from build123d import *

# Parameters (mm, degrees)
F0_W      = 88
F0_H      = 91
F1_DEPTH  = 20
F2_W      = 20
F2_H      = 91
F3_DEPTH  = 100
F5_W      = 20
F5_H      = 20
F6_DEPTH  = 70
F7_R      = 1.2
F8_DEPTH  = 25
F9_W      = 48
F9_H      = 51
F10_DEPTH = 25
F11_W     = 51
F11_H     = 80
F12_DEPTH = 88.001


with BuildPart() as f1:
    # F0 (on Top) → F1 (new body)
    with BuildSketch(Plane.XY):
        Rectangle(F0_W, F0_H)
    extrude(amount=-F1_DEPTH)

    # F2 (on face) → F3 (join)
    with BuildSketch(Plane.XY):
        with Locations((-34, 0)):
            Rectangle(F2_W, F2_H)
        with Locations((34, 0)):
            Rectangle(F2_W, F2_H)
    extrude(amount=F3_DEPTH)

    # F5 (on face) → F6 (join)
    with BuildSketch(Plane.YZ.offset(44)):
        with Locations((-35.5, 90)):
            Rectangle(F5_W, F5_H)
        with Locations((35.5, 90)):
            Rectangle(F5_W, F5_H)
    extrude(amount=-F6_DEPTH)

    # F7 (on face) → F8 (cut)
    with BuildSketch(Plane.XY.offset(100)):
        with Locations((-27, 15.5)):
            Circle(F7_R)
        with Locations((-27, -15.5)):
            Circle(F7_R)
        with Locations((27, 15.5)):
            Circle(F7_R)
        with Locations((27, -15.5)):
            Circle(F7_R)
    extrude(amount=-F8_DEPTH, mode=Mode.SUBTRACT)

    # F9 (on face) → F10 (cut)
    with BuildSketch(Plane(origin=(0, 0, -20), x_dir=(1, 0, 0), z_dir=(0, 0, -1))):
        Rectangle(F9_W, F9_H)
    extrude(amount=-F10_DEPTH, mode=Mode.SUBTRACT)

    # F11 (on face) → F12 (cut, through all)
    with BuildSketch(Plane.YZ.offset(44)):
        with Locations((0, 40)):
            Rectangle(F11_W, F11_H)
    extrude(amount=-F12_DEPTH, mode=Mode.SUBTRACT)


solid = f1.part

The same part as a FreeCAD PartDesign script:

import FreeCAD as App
import Part
import Sketcher
from FreeCAD import Vector


def add_polygon(sketch, points):
    """Adds a closed chain of lines whose ends are joined by coincident constraints."""
    first, n = sketch.GeometryCount, len(points)
    for a, b in zip(points, points[1:] + points[:1]):
        sketch.addGeometry(Part.LineSegment(App.Vector(*a, 0), App.Vector(*b, 0)), False)
    for i in range(n):
        sketch.addConstraint(Sketcher.Constraint("Coincident", first + i, 2, first + (i + 1) % n, 1))

doc = App.newDocument("Part")
body = doc.addObject("PartDesign::Body", "Body")

# Sketch on XY plane
sketch1 = body.newObject("Sketcher::SketchObject", "Sketch")
sketch1.AttachmentSupport = (doc.getObject("XY_Plane"), [""])
sketch1.MapMode = "FlatFace"
add_polygon(sketch1, [(-44, 46), (-44, -46), (44, -46), (44, 46)])  # lines 0-3
sketch1.addConstraint(Sketcher.Constraint("Vertical", 0))
sketch1.addConstraint(Sketcher.Constraint("Horizontal", 1))
sketch1.addConstraint(Sketcher.Constraint("Vertical", 2))
sketch1.addConstraint(Sketcher.Constraint("Horizontal", 3))
sketch1.addConstraint(Sketcher.Constraint("Symmetric", 0, 2, 2, 2, -1, 1))
sketch1.addConstraint(Sketcher.Constraint("DistanceX", 1, 1, 1, 2, 88.0))
sketch1.addConstraint(Sketcher.Constraint("DistanceY", 0, 2, 0, 1, 91.0))
pad1 = body.newObject("PartDesign::Pad", "Pad")
pad1.Profile = sketch1
pad1.Length = 20
pad1.Reversed = True

# Sketch on XY plane
sketch2 = body.newObject("Sketcher::SketchObject", "Sketch001")
sketch2.AttachmentSupport = (doc.getObject("XY_Plane"), [""])
sketch2.MapMode = "FlatFace"
add_polygon(sketch2, [(-44, 46), (-44, -46), (-24, -46), (-24, 46)])  # lines 0-3
add_polygon(sketch2, [(24, 46), (24, -46), (44, -46), (44, 46)])  # lines 4-7
sketch2.addConstraint(Sketcher.Constraint("Vertical", 0))
sketch2.addConstraint(Sketcher.Constraint("Horizontal", 1))
sketch2.addConstraint(Sketcher.Constraint("Vertical", 2))
sketch2.addConstraint(Sketcher.Constraint("Horizontal", 3))
sketch2.addConstraint(Sketcher.Constraint("Vertical", 4))
sketch2.addConstraint(Sketcher.Constraint("Horizontal", 5))
sketch2.addConstraint(Sketcher.Constraint("Vertical", 6))
sketch2.addConstraint(Sketcher.Constraint("Horizontal", 7))
sketch2.addConstraint(Sketcher.Constraint("Symmetric", 2, 2, 4, 2, -1, 1))
sketch2.addConstraint(Sketcher.Constraint("Symmetric", 0, 2, 6, 2, -1, 1))
sketch2.addConstraint(Sketcher.Constraint("Horizontal", 1, 2, 4, 2))
sketch2.addConstraint(Sketcher.Constraint("DistanceX", 1, 1, 1, 2, 20.0))
sketch2.addConstraint(Sketcher.Constraint("DistanceY", 0, 2, 0, 1, 91.0))
sketch2.addConstraint(Sketcher.Constraint("DistanceX", 0, 2, -1, 1, 44.0))
pad2 = body.newObject("PartDesign::Pad", "Pad001")
pad2.Profile = sketch2
pad2.Length = 100

# Sketch on YZ plane
sketch3 = body.newObject("Sketcher::SketchObject", "Sketch002")
sketch3.AttachmentSupport = (doc.getObject("YZ_Plane"), [""])
sketch3.MapMode = "FlatFace"
sketch3.AttachmentOffset = App.Placement(Vector(0, 0, 44), App.Rotation())
add_polygon(sketch3, [(-46, 100), (-46, 80), (-26, 80), (-26, 100)])  # lines 0-3
add_polygon(sketch3, [(26, 100), (26, 80), (46, 80), (46, 100)])  # lines 4-7
sketch3.addConstraint(Sketcher.Constraint("Vertical", 0))
sketch3.addConstraint(Sketcher.Constraint("Horizontal", 1))
sketch3.addConstraint(Sketcher.Constraint("Vertical", 2))
sketch3.addConstraint(Sketcher.Constraint("Horizontal", 3))
sketch3.addConstraint(Sketcher.Constraint("Vertical", 4))
sketch3.addConstraint(Sketcher.Constraint("Horizontal", 5))
sketch3.addConstraint(Sketcher.Constraint("Vertical", 6))
sketch3.addConstraint(Sketcher.Constraint("Horizontal", 7))
sketch3.addConstraint(Sketcher.Constraint("Symmetric", 1, 2, 4, 2, -2))
sketch3.addConstraint(Sketcher.Constraint("Symmetric", 3, 2, 6, 2, -2))
sketch3.addConstraint(Sketcher.Constraint("Equal", 7, 0))
sketch3.addConstraint(Sketcher.Constraint("DistanceX", 1, 1, 1, 2, 20.0))
sketch3.addConstraint(Sketcher.Constraint("DistanceY", -1, 1, 0, 2, 80.0))
sketch3.addConstraint(Sketcher.Constraint("DistanceX", 1, 2, 4, 2, 51.0))
pad3 = body.newObject("PartDesign::Pad", "Pad002")
pad3.Profile = sketch3
pad3.Length = 70
pad3.Reversed = True

# Sketch on XY plane
sketch4 = body.newObject("Sketcher::SketchObject", "Sketch003")
sketch4.AttachmentSupport = (doc.getObject("XY_Plane"), [""])
sketch4.MapMode = "FlatFace"
sketch4.AttachmentOffset = App.Placement(Vector(0, 0, 100), App.Rotation())
sketch4.addGeometry(Part.Circle(Vector(-27, 15.5, 0), Vector(0, 0, 1), 1.2), False)
sketch4.addGeometry(Part.Circle(Vector(-27, -15.5, 0), Vector(0, 0, 1), 1.2), False)
sketch4.addGeometry(Part.Circle(Vector(27, 15.5, 0), Vector(0, 0, 1), 1.2), False)
sketch4.addGeometry(Part.Circle(Vector(27, -15.5, 0), Vector(0, 0, 1), 1.2), False)
sketch4.addConstraint(Sketcher.Constraint("Equal", 0, 1))
sketch4.addConstraint(Sketcher.Constraint("Equal", 1, 2))
sketch4.addConstraint(Sketcher.Constraint("Equal", 2, 3))
sketch4.addConstraint(Sketcher.Constraint("Symmetric", 1, 3, 2, 3, -1, 1))
sketch4.addConstraint(Sketcher.Constraint("Symmetric", 0, 3, 3, 3, -1, 1))
sketch4.addConstraint(Sketcher.Constraint("Symmetric", 0, 3, 2, 3, -2))
sketch4.addConstraint(Sketcher.Constraint("Diameter", 0, 2.4))
sketch4.addConstraint(Sketcher.Constraint("DistanceX", 0, 3, -1, 1, 27.0))
sketch4.addConstraint(Sketcher.Constraint("DistanceY", 1, 3, 0, 3, 31.0))
pocket1 = body.newObject("PartDesign::Pocket", "Pocket")
pocket1.Profile = sketch4
pocket1.Length = 25

# Sketch on XY plane
sketch5 = body.newObject("Sketcher::SketchObject", "Sketch004")
sketch5.AttachmentSupport = (doc.getObject("XY_Plane"), [""])
sketch5.MapMode = "FlatFace"
sketch5.AttachmentOffset = App.Placement(Vector(0, 0, -20), App.Rotation())
add_polygon(sketch5, [(-24, -26), (-24, 26), (24, 26), (24, -26)])  # lines 0-3
sketch5.addConstraint(Sketcher.Constraint("Vertical", 0))
sketch5.addConstraint(Sketcher.Constraint("Horizontal", 1))
sketch5.addConstraint(Sketcher.Constraint("Vertical", 2))
sketch5.addConstraint(Sketcher.Constraint("Horizontal", 3))
sketch5.addConstraint(Sketcher.Constraint("Symmetric", 0, 2, 2, 2, -1, 1))
sketch5.addConstraint(Sketcher.Constraint("DistanceX", 1, 1, 1, 2, 48.0))
sketch5.addConstraint(Sketcher.Constraint("DistanceY", 0, 1, 0, 2, 51.0))
pocket2 = body.newObject("PartDesign::Pocket", "Pocket001")
pocket2.Profile = sketch5
pocket2.Length = 25
pocket2.Reversed = True

# Sketch on YZ plane
sketch6 = body.newObject("Sketcher::SketchObject", "Sketch005")
sketch6.AttachmentSupport = (doc.getObject("YZ_Plane"), [""])
sketch6.MapMode = "FlatFace"
sketch6.AttachmentOffset = App.Placement(Vector(0, 0, 44), App.Rotation())
add_polygon(sketch6, [(-26, 80), (-26, 0), (26, 0), (26, 80)])  # lines 0-3
sketch6.addConstraint(Sketcher.Constraint("Vertical", 0))
sketch6.addConstraint(Sketcher.Constraint("Horizontal", 1))
sketch6.addConstraint(Sketcher.Constraint("Vertical", 2))
sketch6.addConstraint(Sketcher.Constraint("Horizontal", 3))
sketch6.addConstraint(Sketcher.Constraint("Symmetric", 0, 2, 1, 2, -1, 1))
sketch6.addConstraint(Sketcher.Constraint("DistanceX", 1, 1, 1, 2, 51.0))
sketch6.addConstraint(Sketcher.Constraint("DistanceY", 0, 2, 0, 1, 80.0))
pocket3 = body.newObject("PartDesign::Pocket", "Pocket002")
pocket3.Profile = sketch6
pocket3.Type = "ThroughAll"

doc.recompute()
